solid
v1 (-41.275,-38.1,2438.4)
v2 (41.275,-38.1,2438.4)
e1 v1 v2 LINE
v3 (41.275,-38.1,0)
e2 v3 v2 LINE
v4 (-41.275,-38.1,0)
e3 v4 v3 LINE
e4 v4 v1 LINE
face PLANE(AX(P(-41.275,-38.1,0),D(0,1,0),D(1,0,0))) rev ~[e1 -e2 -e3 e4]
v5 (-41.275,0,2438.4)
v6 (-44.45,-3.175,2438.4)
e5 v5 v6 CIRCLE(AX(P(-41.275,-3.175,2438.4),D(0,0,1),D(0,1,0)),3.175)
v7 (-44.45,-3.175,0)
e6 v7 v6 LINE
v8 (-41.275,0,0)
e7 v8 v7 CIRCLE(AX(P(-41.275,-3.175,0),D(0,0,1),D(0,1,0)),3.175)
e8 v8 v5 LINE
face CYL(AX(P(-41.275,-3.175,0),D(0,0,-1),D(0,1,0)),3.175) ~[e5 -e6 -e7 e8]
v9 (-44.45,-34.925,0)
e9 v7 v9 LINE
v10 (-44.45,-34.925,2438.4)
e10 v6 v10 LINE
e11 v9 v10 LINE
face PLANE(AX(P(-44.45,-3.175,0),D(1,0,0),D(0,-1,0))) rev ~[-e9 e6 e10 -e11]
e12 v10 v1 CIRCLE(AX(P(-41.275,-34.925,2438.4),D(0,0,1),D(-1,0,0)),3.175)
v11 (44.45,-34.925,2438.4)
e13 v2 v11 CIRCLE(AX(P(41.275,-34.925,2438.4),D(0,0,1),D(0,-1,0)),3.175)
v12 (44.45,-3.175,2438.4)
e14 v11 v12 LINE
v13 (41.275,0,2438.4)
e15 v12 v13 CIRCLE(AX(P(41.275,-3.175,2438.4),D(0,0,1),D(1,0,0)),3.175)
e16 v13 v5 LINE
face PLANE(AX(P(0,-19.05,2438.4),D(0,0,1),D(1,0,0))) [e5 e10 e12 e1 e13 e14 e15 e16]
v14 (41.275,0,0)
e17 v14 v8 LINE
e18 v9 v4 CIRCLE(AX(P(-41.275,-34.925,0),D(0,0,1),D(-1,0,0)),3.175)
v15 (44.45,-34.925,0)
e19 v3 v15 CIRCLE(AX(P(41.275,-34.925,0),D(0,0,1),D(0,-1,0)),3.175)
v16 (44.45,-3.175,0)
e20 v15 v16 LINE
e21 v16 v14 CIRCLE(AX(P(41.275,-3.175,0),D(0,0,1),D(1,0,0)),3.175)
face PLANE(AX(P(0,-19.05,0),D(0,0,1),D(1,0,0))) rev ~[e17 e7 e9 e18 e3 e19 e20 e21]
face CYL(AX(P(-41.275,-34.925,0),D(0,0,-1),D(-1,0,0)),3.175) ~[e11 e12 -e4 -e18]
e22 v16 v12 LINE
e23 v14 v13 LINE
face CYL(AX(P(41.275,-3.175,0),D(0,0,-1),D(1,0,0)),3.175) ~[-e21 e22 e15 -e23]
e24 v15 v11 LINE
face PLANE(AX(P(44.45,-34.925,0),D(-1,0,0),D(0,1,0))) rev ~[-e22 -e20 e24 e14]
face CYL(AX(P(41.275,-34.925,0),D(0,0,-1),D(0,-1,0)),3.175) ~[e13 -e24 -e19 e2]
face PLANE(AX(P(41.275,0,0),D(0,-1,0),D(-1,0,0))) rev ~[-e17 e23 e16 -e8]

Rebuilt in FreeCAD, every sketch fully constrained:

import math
import FreeCAD as App
import Part
import Sketcher
Q = App.Units.Quantity

doc = App.newDocument("Part")
params = doc.addObject("Spreadsheet::Sheet", "Params")
for row, (alias, value) in enumerate([
    ("sketch1_radius", "0.125 in"),
    ("sketch1_width", "3.25 in"),
    ("sketch1_height", "1.25 in"),
    ("pad1_length", "96 in"),
], start=1):
    params.set(f"A{row}", alias)
    params.set(f"B{row}", "=" + value)
    params.setAlias(f"B{row}", alias)

body = doc.addObject("PartDesign::Body", "Body")

# Sketch on XY plane
sketch1 = body.newObject("Sketcher::SketchObject", "Sketch")
sketch1.AttachmentSupport = (doc.getObject("XY_Plane"), [""])
sketch1.MapMode = "FlatFace"
sketch1.addGeometry([
    Part.LineSegment(App.Vector(-61.6, 13.4, 0), App.Vector(-144.2, 13.4, 0)),  # 0
    Part.ArcOfCircle(Part.Circle(App.Vector(-144.2, 10.2, 0), App.Vector(0, 0, 1), 3.2), math.radians(90), math.radians(180)),  # 1
    Part.LineSegment(App.Vector(-147.4, 10.2, 0), App.Vector(-147.4, -21.5, 0)),  # 2
    Part.ArcOfCircle(Part.Circle(App.Vector(-144.2, -21.5, 0), App.Vector(0, 0, 1), 3.2), math.radians(180), math.radians(270)),  # 3
    Part.LineSegment(App.Vector(-144.2, -24.7, 0), App.Vector(-61.6, -24.7, 0)),  # 4
    Part.ArcOfCircle(Part.Circle(App.Vector(-61.6, -21.5, 0), App.Vector(0, 0, 1), 3.2), math.radians(-90), math.radians(0)),  # 5
    Part.LineSegment(App.Vector(-58.5, -21.5, 0), App.Vector(-58.5, 10.2, 0)),  # 6
    Part.ArcOfCircle(Part.Circle(App.Vector(-61.6, 10.2, 0), App.Vector(0, 0, 1), 3.2), math.radians(0), math.radians(90)),  # 7
], False)
sketch1.addConstraint([
    Sketcher.Constraint("Tangent", 0, 2, 1, 1),
    Sketcher.Constraint("Tangent", 1, 2, 2, 1),
    Sketcher.Constraint("Tangent", 2, 2, 3, 1),
    Sketcher.Constraint("Tangent", 3, 2, 4, 1),
    Sketcher.Constraint("Tangent", 4, 2, 5, 1),
    Sketcher.Constraint("Tangent", 5, 2, 6, 1),
    Sketcher.Constraint("Tangent", 6, 2, 7, 1),
    Sketcher.Constraint("Tangent", 7, 2, 0, 1),
    Sketcher.Constraint("Horizontal", 0),
    Sketcher.Constraint("Vertical", 2),
    Sketcher.Constraint("Horizontal", 4),
    Sketcher.Constraint("Vertical", 6),
    Sketcher.Constraint("Equal", 1, 3),
    Sketcher.Constraint("Equal", 3, 5),
    Sketcher.Constraint("Equal", 5, 7),
    Sketcher.Constraint("Radius", 1, Q("0.125 in")),
    Sketcher.Constraint("DistanceX", 0, 2, 0, 1, Q("3.25 in")),
    Sketcher.Constraint("DistanceY", 2, 2, 2, 1, Q("1.25 in")),
    Sketcher.Constraint("DistanceX", 1, 3, -1, 1, 144.179576),
    Sketcher.Constraint("DistanceY", -1, 1, 1, 3, 10.238597),
])
sketch1.setExpression("Constraints[15]", "Params.sketch1_radius")
sketch1.setExpression("Constraints[16]", "Params.sketch1_width")
sketch1.setExpression("Constraints[17]", "Params.sketch1_height")
pad1 = body.newObject("PartDesign::Pad", "Pad")
pad1.Profile = sketch1
pad1.setExpression("Length", "Params.pad1_length")
body2 = doc.addObject("PartDesign::Body", "Body001")
doc.recompute()

body.Placement = App.Placement(App.Vector(102.904576, -13.413597, 0), App.Rotation(App.Vector(0, 0, 1), 0))
boolean = body2.newObject("PartDesign::Boolean", "Boolean")
boolean.Type = "Fuse"
boolean.addObjects([body])

doc.recompute()
